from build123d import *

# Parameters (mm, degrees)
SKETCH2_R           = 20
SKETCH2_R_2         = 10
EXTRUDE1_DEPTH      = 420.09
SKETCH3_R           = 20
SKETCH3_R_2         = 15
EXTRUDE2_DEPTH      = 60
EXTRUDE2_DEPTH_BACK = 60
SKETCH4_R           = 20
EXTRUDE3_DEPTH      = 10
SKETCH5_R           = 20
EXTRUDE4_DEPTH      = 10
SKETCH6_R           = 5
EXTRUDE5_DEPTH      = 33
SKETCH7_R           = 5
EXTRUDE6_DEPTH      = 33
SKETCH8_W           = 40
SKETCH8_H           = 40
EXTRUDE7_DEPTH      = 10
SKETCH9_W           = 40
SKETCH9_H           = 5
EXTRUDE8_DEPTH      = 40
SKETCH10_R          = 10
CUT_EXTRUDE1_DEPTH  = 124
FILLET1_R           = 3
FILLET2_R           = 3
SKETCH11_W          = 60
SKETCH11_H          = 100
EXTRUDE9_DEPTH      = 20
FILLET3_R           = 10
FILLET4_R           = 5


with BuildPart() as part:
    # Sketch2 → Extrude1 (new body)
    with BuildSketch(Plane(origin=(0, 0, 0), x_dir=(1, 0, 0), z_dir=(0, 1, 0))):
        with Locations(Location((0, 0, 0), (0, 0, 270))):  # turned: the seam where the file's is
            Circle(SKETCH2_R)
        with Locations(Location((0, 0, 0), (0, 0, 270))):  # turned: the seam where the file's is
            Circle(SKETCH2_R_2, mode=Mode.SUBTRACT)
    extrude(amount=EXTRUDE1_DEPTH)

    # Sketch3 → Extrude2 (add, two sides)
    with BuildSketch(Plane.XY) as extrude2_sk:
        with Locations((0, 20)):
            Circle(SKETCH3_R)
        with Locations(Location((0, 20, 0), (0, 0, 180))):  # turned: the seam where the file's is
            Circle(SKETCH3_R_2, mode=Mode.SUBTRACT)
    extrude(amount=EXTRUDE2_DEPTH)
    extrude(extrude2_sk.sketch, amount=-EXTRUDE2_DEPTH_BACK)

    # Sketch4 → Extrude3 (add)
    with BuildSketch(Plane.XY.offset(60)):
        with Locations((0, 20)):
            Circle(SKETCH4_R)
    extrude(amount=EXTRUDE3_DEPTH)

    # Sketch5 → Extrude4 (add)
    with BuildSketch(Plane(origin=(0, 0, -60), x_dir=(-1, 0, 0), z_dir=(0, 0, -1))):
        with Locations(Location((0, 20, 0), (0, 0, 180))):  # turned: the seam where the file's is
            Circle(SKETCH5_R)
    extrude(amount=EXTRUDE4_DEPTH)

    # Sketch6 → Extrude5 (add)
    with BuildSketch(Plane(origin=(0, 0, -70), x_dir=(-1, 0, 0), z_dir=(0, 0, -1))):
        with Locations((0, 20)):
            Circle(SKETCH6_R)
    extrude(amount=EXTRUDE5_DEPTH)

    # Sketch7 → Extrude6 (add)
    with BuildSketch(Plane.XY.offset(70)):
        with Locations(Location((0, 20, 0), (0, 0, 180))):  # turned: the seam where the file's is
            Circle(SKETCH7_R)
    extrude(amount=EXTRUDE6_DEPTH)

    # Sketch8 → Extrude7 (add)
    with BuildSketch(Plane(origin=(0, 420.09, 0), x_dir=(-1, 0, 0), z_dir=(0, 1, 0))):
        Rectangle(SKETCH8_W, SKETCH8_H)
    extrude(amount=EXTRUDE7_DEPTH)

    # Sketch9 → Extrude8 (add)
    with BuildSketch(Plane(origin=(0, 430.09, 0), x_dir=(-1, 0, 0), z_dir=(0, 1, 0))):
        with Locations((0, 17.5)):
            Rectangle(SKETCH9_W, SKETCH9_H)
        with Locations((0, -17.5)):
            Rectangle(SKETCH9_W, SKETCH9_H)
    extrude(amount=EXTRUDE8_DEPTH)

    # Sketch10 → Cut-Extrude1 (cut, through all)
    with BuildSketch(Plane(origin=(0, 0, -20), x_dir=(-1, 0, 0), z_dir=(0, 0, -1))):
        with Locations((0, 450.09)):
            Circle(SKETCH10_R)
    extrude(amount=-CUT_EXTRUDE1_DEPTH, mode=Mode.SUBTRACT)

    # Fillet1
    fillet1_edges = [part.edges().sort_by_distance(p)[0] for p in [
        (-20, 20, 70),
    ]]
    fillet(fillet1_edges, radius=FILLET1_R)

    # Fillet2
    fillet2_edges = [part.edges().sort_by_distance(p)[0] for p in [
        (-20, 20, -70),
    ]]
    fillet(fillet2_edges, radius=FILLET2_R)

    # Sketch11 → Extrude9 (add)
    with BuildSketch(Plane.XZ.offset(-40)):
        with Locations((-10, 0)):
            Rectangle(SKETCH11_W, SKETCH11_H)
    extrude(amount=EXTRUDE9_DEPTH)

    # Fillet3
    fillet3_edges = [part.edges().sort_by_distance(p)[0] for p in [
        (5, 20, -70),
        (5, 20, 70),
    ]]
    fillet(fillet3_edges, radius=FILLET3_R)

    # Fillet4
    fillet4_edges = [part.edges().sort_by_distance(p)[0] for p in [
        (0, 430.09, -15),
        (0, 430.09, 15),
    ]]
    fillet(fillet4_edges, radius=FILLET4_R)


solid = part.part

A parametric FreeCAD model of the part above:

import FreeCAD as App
import Part
import Sketcher
from FreeCAD import Vector
Q = App.Units.Quantity


def edges_at(feature, points):
    """Names of the edges that pass closest to the given points."""
    edges = feature.Shape.Edges
    near = lambda p: min(range(len(edges)), key=lambda i: edges[i].distToShape(Part.Vertex(*p))[0])
    return sorted({f"Edge{near(p) + 1}" for p in points})

doc = App.newDocument("Part")
params = doc.addObject("Spreadsheet::Sheet", "Params")
for row, (alias, value) in enumerate([
    ("sketch1_diameter", "40 mm"),
    ("sketch1_diameter2", "20 mm"),
    ("pad1_length", "420.09 mm"),
    ("sketch2_diameter", "40 mm"),
    ("sketch2_diameter2", "30 mm"),
    ("pad2_length", "60 mm"),
    ("pad2_length2", "60 mm"),
    ("sketch3_diameter", "40 mm"),
    ("pad3_length", "10 mm"),
    ("sketch4_diameter", "40 mm"),
    ("pad4_length", "10 mm"),
    ("sketch5_diameter", "10 mm"),
    ("pad5_length", "33 mm"),
    ("sketch6_diameter", "10 mm"),
    ("pad6_length", "33 mm"),
    ("sketch7_width", "40 mm"),
    ("pad7_length", "10 mm"),
    ("sketch8_width", "40 mm"),
    ("sketch8_height", "5 mm"),
    ("pad8_length", "40 mm"),
    ("sketch9_diameter", "20 mm"),
    ("fillet_radius", "3 mm"),
    ("fillet2_radius", "3 mm"),
    ("sketch10_width", "60 mm"),
    ("sketch10_height", "100 mm"),
    ("pad9_length", "20 mm"),
    ("fillet3_radius", "10 mm"),
    ("fillet4_radius", "5 mm"),
], start=1):
    params.set(f"A{row}", alias)
    params.set(f"B{row}", "=" + value)
    params.setAlias(f"B{row}", alias)

body = doc.addObject("PartDesign::Body", "Body")

sketch1 = body.newObject("Sketcher::SketchObject", "Sketch")
sketch1.AttachmentSupport = (doc.getObject("XZ_Plane"), [""])
sketch1.MapMode = "FlatFace"
sketch1.addGeometry(Part.Circle(Vector(0, 0, 0), Vector(0, 0, 1), 20), False)
sketch1.addGeometry(Part.Circle(Vector(0, 0, 0), Vector(0, 0, 1), 10), False)
sketch1.addConstraint(Sketcher.Constraint("Coincident", 0, 3, -1, 1))
sketch1.addConstraint(Sketcher.Constraint("Coincident", 1, 3, -1, 1))
sketch1.addConstraint(Sketcher.Constraint("Diameter", 0, Q("40 mm")))
sketch1.addConstraint(Sketcher.Constraint("Diameter", 1, Q("20 mm")))
sketch1.setExpression("Constraints[2]", "Params.sketch1_diameter")
sketch1.setExpression("Constraints[3]", "Params.sketch1_diameter2")
pad1 = body.newObject("PartDesign::Pad", "Pad")
pad1.Profile = sketch1
pad1.setExpression("Length", "Params.pad1_length")
pad1.Reversed = True

sketch2 = body.newObject("Sketcher::SketchObject", "Sketch001")
sketch2.AttachmentSupport = (doc.getObject("XY_Plane"), [""])
sketch2.MapMode = "FlatFace"
sketch2.addGeometry(Part.Circle(Vector(0, 20, 0), Vector(0, 0, 1), 20), False)
sketch2.addGeometry(Part.Circle(Vector(0, 20, 0), Vector(0, 0, 1), 15), False)
sketch2.addConstraint(Sketcher.Constraint("Coincident", 1, 3, 0, 3))
sketch2.addConstraint(Sketcher.Constraint("PointOnObject", 0, 3, -2))
sketch2.addConstraint(Sketcher.Constraint("Diameter", 0, Q("40 mm")))
sketch2.addConstraint(Sketcher.Constraint("Diameter", 1, Q("30 mm")))
sketch2.addConstraint(Sketcher.Constraint("DistanceY", -1, 1, 0, 3, Q("20 mm")))
sketch2.setExpression("Constraints[2]", "Params.sketch2_diameter")
sketch2.setExpression("Constraints[3]", "Params.sketch2_diameter2")
pad2 = body.newObject("PartDesign::Pad", "Pad001")
pad2.Profile = sketch2
pad2.Type = "TwoLengths"
pad2.setExpression("Length", "Params.pad2_length")
pad2.setExpression("Length2", "Params.pad2_length2")

sketch3 = body.newObject("Sketcher::SketchObject", "Sketch002")
sketch3.AttachmentSupport = (doc.getObject("XY_Plane"), [""])
sketch3.MapMode = "FlatFace"
sketch3.AttachmentOffset = App.Placement(Vector(0, 0, 60), App.Rotation())
sketch3.addGeometry(Part.Circle(Vector(0, 20, 0), Vector(0, 0, 1), 20), False)
sketch3.addConstraint(Sketcher.Constraint("PointOnObject", 0, 3, -2))
sketch3.addConstraint(Sketcher.Constraint("Diameter", 0, Q("40 mm")))
sketch3.addConstraint(Sketcher.Constraint("DistanceY", -1, 1, 0, 3, Q("20 mm")))
sketch3.setExpression("Constraints[1]", "Params.sketch3_diameter")
pad3 = body.newObject("PartDesign::Pad", "Pad002")
pad3.Profile = sketch3
pad3.setExpression("Length", "Params.pad3_length")

sketch4 = body.newObject("Sketcher::SketchObject", "Sketch003")
sketch4.AttachmentSupport = (doc.getObject("XY_Plane"), [""])
sketch4.MapMode = "FlatFace"
sketch4.AttachmentOffset = App.Placement(Vector(0, 0, -60), App.Rotation())
sketch4.addGeometry(Part.Circle(Vector(0, 20, 0), Vector(0, 0, 1), 20), False)
sketch4.addConstraint(Sketcher.Constraint("PointOnObject", 0, 3, -2))
sketch4.addConstraint(Sketcher.Constraint("Diameter", 0, Q("40 mm")))
sketch4.addConstraint(Sketcher.Constraint("DistanceY", -1, 1, 0, 3, Q("20 mm")))
sketch4.setExpression("Constraints[1]", "Params.sketch4_diameter")
pad4 = body.newObject("PartDesign::Pad", "Pad003")
pad4.Profile = sketch4
pad4.setExpression("Length", "Params.pad4_length")
pad4.Reversed = True

sketch5 = body.newObject("Sketcher::SketchObject", "Sketch004")
sketch5.AttachmentSupport = (doc.getObject("XY_Plane"), [""])
sketch5.MapMode = "FlatFace"
sketch5.AttachmentOffset = App.Placement(Vector(0, 0, -70), App.Rotation())
sketch5.addGeometry(Part.Circle(Vector(0, 20, 0), Vector(0, 0, 1), 5), False)
sketch5.addConstraint(Sketcher.Constraint("PointOnObject", 0, 3, -2))
sketch5.addConstraint(Sketcher.Constraint("Diameter", 0, Q("10 mm")))
sketch5.addConstraint(Sketcher.Constraint("DistanceY", -1, 1, 0, 3, Q("20 mm")))
sketch5.setExpression("Constraints[1]", "Params.sketch5_diameter")
pad5 = body.newObject("PartDesign::Pad", "Pad004")
pad5.Profile = sketch5
pad5.setExpression("Length", "Params.pad5_length")
pad5.Reversed = True

sketch6 = body.newObject("Sketcher::SketchObject", "Sketch005")
sketch6.AttachmentSupport = (doc.getObject("XY_Plane"), [""])
sketch6.MapMode = "FlatFace"
sketch6.AttachmentOffset = App.Placement(Vector(0, 0, 70), App.Rotation())
sketch6.addGeometry(Part.Circle(Vector(0, 20, 0), Vector(0, 0, 1), 5), False)
sketch6.addConstraint(Sketcher.Constraint("PointOnObject", 0, 3, -2))
sketch6.addConstraint(Sketcher.Constraint("Diameter", 0, Q("10 mm")))
sketch6.addConstraint(Sketcher.Constraint("DistanceY", -1, 1, 0, 3, Q("20 mm")))
sketch6.setExpression("Constraints[1]", "Params.sketch6_diameter")
pad6 = body.newObject("PartDesign::Pad", "Pad005")
pad6.Profile = sketch6
pad6.setExpression("Length", "Params.pad6_length")

sketch7 = body.newObject("Sketcher::SketchObject", "Sketch006")
sketch7.AttachmentSupport = (doc.getObject("XZ_Plane"), [""])
sketch7.MapMode = "FlatFace"
sketch7.AttachmentOffset = App.Placement(Vector(0, 0, -420.09), App.Rotation())
sketch7.addGeometry(Part.LineSegment(Vector(20, 20, 0), Vector(20, -20, 0)), False)
sketch7.addGeometry(Part.LineSegment(Vector(20, -20, 0), Vector(-20, -20, 0)), False)
sketch7.addGeometry(Part.LineSegment(Vector(-20, -20, 0), Vector(-20, 20, 0)), False)
sketch7.addGeometry(Part.LineSegment(Vector(-20, 20, 0), Vector(20, 20, 0)), False)
sketch7.addConstraint(Sketcher.Constraint("Coincident", 0, 2, 1, 1))
sketch7.addConstraint(Sketcher.Constraint("Coincident", 1, 2, 2, 1))
sketch7.addConstraint(Sketcher.Constraint("Coincident", 2, 2, 3, 1))
sketch7.addConstraint(Sketcher.Constraint("Coincident", 3, 2, 0, 1))
sketch7.addConstraint(Sketcher.Constraint("Vertical", 0))
sketch7.addConstraint(Sketcher.Constraint("Horizontal", 1))
sketch7.addConstraint(Sketcher.Constraint("Vertical", 2))
sketch7.addConstraint(Sketcher.Constraint("Horizontal", 3))
sketch7.addConstraint(Sketcher.Constraint("Symmetric", 0, 2, 2, 2, -1, 1))
sketch7.addConstraint(Sketcher.Constraint("Equal", 3, 0))
sketch7.addConstraint(Sketcher.Constraint("DistanceX", 1, 2, 1, 1, Q("40 mm")))
sketch7.setExpression("Constraints[10]", "Params.sketch7_width")
pad7 = body.newObject("PartDesign::Pad", "Pad006")
pad7.Profile = sketch7
pad7.setExpression("Length", "Params.pad7_length")
pad7.Reversed = True

sketch8 = body.newObject("Sketcher::SketchObject", "Sketch007")
sketch8.AttachmentSupport = (doc.getObject("XZ_Plane"), [""])
sketch8.MapMode = "FlatFace"
sketch8.AttachmentOffset = App.Placement(Vector(0, 0, -430.09), App.Rotation())
sketch8.addGeometry(Part.LineSegment(Vector(20, 20, 0), Vector(20, 15, 0)), False)
sketch8.addGeometry(Part.LineSegment(Vector(20, 15, 0), Vector(-20, 15, 0)), False)
sketch8.addGeometry(Part.LineSegment(Vector(-20, 15, 0), Vector(-20, 20, 0)), False)
sketch8.addGeometry(Part.LineSegment(Vector(-20, 20, 0), Vector(20, 20, 0)), False)
sketch8.addGeometry(Part.LineSegment(Vector(20, -15, 0), Vector(20, -20, 0)), False)
sketch8.addGeometry(Part.LineSegment(Vector(20, -20, 0), Vector(-20, -20, 0)), False)
sketch8.addGeometry(Part.LineSegment(Vector(-20, -20, 0), Vector(-20, -15, 0)), False)
sketch8.addGeometry(Part.LineSegment(Vector(-20, -15, 0), Vector(20, -15, 0)), False)
sketch8.addConstraint(Sketcher.Constraint("Coincident", 0, 2, 1, 1))
sketch8.addConstraint(Sketcher.Constraint("Coincident", 1, 2, 2, 1))
sketch8.addConstraint(Sketcher.Constraint("Coincident", 2, 2, 3, 1))
sketch8.addConstraint(Sketcher.Constraint("Coincident", 3, 2, 0, 1))
sketch8.addConstraint(Sketcher.Constraint("Coincident", 4, 2, 5, 1))
sketch8.addConstraint(Sketcher.Constraint("Coincident", 5, 2, 6, 1))
sketch8.addConstraint(Sketcher.Constraint("Coincident", 6, 2, 7, 1))
sketch8.addConstraint(Sketcher.Constraint("Coincident", 7, 2, 4, 1))
sketch8.addConstraint(Sketcher.Constraint("Vertical", 0))
sketch8.addConstraint(Sketcher.Constraint("Horizontal", 1))
sketch8.addConstraint(Sketcher.Constraint("Vertical", 2))
sketch8.addConstraint(Sketcher.Constraint("Horizontal", 3))
sketch8.addConstraint(Sketcher.Constraint("Vertical", 4))
sketch8.addConstraint(Sketcher.Constraint("Horizontal", 5))
sketch8.addConstraint(Sketcher.Constraint("Vertical", 6))
sketch8.addConstraint(Sketcher.Constraint("Horizontal", 7))
sketch8.addConstraint(Sketcher.Constraint("Symmetric", 2, 2, 4, 2, -1, 1))
sketch8.addConstraint(Sketcher.Constraint("Symmetric", 0, 2, 6, 2, -1, 1))
sketch8.addConstraint(Sketcher.Constraint("Vertical", 3, 2, 4, 2))
sketch8.addConstraint(Sketcher.Constraint("DistanceX", 1, 2, 1, 1, Q("40 mm")))
sketch8.addConstraint(Sketcher.Constraint("DistanceY", 0, 2, 0, 1, Q("5 mm")))
sketch8.addConstraint(Sketcher.Constraint("DistanceY", -1, 1, 0, 2, Q("15 mm")))
sketch8.setExpression("Constraints[19]", "Params.sketch8_width")
sketch8.setExpression("Constraints[20]", "Params.sketch8_height")
pad8 = body.newObject("PartDesign::Pad", "Pad007")
pad8.Profile = sketch8
pad8.setExpression("Length", "Params.pad8_length")
pad8.Reversed = True

sketch9 = body.newObject("Sketcher::SketchObject", "Sketch008")
sketch9.AttachmentSupport = (doc.getObject("XY_Plane"), [""])
sketch9.MapMode = "FlatFace"
sketch9.AttachmentOffset = App.Placement(Vector(0, 0, -20), App.Rotation())
sketch9.addGeometry(Part.Circle(Vector(0, 450.09, 0), Vector(0, 0, 1), 10), False)
sketch9.addConstraint(Sketcher.Constraint("PointOnObject", 0, 3, -2))
sketch9.addConstraint(Sketcher.Constraint("Diameter", 0, Q("20 mm")))
sketch9.addConstraint(Sketcher.Constraint("DistanceY", -1, 1, 0, 3, Q("450.09 mm")))
sketch9.setExpression("Constraints[1]", "Params.sketch9_diameter")
pocket1 = body.newObject("PartDesign::Pocket", "Pocket")
pocket1.Profile = sketch9
pocket1.Type = "ThroughAll"
pocket1.Reversed = True
doc.recompute()

fillet = body.newObject("PartDesign::Fillet", "Fillet")
fillet.Base = (pocket1, edges_at(pocket1, [(-20, 20, 70)]))
fillet.setExpression("Radius", "Params.fillet_radius")
doc.recompute()

fillet2 = body.newObject("PartDesign::Fillet", "Fillet001")
fillet2.Base = (fillet, edges_at(fillet, [(-20, 20, -70)]))
fillet2.setExpression("Radius", "Params.fillet2_radius")

sketch10 = body.newObject("Sketcher::SketchObject", "Sketch009")
sketch10.AttachmentSupport = (doc.getObject("XZ_Plane"), [""])
sketch10.MapMode = "FlatFace"
sketch10.AttachmentOffset = App.Placement(Vector(0, 0, -40), App.Rotation())
sketch10.addGeometry(Part.LineSegment(Vector(-40, 50, 0), Vector(-40, -50, 0)), False)
sketch10.addGeometry(Part.LineSegment(Vector(-40, -50, 0), Vector(20, -50, 0)), False)
sketch10.addGeometry(Part.LineSegment(Vector(20, -50, 0), Vector(20, 50, 0)), False)
sketch10.addGeometry(Part.LineSegment(Vector(20, 50, 0), Vector(-40, 50, 0)), False)
sketch10.addConstraint(Sketcher.Constraint("Coincident", 0, 2, 1, 1))
sketch10.addConstraint(Sketcher.Constraint("Coincident", 1, 2, 2, 1))
sketch10.addConstraint(Sketcher.Constraint("Coincident", 2, 2, 3, 1))
sketch10.addConstraint(Sketcher.Constraint("Coincident", 3, 2, 0, 1))
sketch10.addConstraint(Sketcher.Constraint("Vertical", 0))
sketch10.addConstraint(Sketcher.Constraint("Horizontal", 1))
sketch10.addConstraint(Sketcher.Constraint("Vertical", 2))
sketch10.addConstraint(Sketcher.Constraint("Horizontal", 3))
sketch10.addConstraint(Sketcher.Constraint("DistanceX", 1, 1, 1, 2, Q("60 mm")))
sketch10.addConstraint(Sketcher.Constraint("DistanceY", 0, 2, 0, 1, Q("100 mm")))
sketch10.addConstraint(Sketcher.Constraint("DistanceX", 0, 2, -1, 1, Q("40 mm")))
sketch10.addConstraint(Sketcher.Constraint("DistanceY", 0, 2, -1, 1, Q("50 mm")))
sketch10.setExpression("Constraints[8]", "Params.sketch10_width")
sketch10.setExpression("Constraints[9]", "Params.sketch10_height")
pad9 = body.newObject("PartDesign::Pad", "Pad008")
pad9.Profile = sketch10
pad9.setExpression("Length", "Params.pad9_length")
doc.recompute()

fillet3 = body.newObject("PartDesign::Fillet", "Fillet002")
fillet3.Base = (pad9, edges_at(pad9, [(5, 20, -70), (5, 20, 70)]))
fillet3.setExpression("Radius", "Params.fillet3_radius")
doc.recompute()

fillet4 = body.newObject("PartDesign::Fillet", "Fillet003")
fillet4.Base = (fillet3, edges_at(fillet3, [(0, 430.09, -15), (0, 430.09, 15)]))
fillet4.setExpression("Radius", "Params.fillet4_radius")

doc.recompute()
